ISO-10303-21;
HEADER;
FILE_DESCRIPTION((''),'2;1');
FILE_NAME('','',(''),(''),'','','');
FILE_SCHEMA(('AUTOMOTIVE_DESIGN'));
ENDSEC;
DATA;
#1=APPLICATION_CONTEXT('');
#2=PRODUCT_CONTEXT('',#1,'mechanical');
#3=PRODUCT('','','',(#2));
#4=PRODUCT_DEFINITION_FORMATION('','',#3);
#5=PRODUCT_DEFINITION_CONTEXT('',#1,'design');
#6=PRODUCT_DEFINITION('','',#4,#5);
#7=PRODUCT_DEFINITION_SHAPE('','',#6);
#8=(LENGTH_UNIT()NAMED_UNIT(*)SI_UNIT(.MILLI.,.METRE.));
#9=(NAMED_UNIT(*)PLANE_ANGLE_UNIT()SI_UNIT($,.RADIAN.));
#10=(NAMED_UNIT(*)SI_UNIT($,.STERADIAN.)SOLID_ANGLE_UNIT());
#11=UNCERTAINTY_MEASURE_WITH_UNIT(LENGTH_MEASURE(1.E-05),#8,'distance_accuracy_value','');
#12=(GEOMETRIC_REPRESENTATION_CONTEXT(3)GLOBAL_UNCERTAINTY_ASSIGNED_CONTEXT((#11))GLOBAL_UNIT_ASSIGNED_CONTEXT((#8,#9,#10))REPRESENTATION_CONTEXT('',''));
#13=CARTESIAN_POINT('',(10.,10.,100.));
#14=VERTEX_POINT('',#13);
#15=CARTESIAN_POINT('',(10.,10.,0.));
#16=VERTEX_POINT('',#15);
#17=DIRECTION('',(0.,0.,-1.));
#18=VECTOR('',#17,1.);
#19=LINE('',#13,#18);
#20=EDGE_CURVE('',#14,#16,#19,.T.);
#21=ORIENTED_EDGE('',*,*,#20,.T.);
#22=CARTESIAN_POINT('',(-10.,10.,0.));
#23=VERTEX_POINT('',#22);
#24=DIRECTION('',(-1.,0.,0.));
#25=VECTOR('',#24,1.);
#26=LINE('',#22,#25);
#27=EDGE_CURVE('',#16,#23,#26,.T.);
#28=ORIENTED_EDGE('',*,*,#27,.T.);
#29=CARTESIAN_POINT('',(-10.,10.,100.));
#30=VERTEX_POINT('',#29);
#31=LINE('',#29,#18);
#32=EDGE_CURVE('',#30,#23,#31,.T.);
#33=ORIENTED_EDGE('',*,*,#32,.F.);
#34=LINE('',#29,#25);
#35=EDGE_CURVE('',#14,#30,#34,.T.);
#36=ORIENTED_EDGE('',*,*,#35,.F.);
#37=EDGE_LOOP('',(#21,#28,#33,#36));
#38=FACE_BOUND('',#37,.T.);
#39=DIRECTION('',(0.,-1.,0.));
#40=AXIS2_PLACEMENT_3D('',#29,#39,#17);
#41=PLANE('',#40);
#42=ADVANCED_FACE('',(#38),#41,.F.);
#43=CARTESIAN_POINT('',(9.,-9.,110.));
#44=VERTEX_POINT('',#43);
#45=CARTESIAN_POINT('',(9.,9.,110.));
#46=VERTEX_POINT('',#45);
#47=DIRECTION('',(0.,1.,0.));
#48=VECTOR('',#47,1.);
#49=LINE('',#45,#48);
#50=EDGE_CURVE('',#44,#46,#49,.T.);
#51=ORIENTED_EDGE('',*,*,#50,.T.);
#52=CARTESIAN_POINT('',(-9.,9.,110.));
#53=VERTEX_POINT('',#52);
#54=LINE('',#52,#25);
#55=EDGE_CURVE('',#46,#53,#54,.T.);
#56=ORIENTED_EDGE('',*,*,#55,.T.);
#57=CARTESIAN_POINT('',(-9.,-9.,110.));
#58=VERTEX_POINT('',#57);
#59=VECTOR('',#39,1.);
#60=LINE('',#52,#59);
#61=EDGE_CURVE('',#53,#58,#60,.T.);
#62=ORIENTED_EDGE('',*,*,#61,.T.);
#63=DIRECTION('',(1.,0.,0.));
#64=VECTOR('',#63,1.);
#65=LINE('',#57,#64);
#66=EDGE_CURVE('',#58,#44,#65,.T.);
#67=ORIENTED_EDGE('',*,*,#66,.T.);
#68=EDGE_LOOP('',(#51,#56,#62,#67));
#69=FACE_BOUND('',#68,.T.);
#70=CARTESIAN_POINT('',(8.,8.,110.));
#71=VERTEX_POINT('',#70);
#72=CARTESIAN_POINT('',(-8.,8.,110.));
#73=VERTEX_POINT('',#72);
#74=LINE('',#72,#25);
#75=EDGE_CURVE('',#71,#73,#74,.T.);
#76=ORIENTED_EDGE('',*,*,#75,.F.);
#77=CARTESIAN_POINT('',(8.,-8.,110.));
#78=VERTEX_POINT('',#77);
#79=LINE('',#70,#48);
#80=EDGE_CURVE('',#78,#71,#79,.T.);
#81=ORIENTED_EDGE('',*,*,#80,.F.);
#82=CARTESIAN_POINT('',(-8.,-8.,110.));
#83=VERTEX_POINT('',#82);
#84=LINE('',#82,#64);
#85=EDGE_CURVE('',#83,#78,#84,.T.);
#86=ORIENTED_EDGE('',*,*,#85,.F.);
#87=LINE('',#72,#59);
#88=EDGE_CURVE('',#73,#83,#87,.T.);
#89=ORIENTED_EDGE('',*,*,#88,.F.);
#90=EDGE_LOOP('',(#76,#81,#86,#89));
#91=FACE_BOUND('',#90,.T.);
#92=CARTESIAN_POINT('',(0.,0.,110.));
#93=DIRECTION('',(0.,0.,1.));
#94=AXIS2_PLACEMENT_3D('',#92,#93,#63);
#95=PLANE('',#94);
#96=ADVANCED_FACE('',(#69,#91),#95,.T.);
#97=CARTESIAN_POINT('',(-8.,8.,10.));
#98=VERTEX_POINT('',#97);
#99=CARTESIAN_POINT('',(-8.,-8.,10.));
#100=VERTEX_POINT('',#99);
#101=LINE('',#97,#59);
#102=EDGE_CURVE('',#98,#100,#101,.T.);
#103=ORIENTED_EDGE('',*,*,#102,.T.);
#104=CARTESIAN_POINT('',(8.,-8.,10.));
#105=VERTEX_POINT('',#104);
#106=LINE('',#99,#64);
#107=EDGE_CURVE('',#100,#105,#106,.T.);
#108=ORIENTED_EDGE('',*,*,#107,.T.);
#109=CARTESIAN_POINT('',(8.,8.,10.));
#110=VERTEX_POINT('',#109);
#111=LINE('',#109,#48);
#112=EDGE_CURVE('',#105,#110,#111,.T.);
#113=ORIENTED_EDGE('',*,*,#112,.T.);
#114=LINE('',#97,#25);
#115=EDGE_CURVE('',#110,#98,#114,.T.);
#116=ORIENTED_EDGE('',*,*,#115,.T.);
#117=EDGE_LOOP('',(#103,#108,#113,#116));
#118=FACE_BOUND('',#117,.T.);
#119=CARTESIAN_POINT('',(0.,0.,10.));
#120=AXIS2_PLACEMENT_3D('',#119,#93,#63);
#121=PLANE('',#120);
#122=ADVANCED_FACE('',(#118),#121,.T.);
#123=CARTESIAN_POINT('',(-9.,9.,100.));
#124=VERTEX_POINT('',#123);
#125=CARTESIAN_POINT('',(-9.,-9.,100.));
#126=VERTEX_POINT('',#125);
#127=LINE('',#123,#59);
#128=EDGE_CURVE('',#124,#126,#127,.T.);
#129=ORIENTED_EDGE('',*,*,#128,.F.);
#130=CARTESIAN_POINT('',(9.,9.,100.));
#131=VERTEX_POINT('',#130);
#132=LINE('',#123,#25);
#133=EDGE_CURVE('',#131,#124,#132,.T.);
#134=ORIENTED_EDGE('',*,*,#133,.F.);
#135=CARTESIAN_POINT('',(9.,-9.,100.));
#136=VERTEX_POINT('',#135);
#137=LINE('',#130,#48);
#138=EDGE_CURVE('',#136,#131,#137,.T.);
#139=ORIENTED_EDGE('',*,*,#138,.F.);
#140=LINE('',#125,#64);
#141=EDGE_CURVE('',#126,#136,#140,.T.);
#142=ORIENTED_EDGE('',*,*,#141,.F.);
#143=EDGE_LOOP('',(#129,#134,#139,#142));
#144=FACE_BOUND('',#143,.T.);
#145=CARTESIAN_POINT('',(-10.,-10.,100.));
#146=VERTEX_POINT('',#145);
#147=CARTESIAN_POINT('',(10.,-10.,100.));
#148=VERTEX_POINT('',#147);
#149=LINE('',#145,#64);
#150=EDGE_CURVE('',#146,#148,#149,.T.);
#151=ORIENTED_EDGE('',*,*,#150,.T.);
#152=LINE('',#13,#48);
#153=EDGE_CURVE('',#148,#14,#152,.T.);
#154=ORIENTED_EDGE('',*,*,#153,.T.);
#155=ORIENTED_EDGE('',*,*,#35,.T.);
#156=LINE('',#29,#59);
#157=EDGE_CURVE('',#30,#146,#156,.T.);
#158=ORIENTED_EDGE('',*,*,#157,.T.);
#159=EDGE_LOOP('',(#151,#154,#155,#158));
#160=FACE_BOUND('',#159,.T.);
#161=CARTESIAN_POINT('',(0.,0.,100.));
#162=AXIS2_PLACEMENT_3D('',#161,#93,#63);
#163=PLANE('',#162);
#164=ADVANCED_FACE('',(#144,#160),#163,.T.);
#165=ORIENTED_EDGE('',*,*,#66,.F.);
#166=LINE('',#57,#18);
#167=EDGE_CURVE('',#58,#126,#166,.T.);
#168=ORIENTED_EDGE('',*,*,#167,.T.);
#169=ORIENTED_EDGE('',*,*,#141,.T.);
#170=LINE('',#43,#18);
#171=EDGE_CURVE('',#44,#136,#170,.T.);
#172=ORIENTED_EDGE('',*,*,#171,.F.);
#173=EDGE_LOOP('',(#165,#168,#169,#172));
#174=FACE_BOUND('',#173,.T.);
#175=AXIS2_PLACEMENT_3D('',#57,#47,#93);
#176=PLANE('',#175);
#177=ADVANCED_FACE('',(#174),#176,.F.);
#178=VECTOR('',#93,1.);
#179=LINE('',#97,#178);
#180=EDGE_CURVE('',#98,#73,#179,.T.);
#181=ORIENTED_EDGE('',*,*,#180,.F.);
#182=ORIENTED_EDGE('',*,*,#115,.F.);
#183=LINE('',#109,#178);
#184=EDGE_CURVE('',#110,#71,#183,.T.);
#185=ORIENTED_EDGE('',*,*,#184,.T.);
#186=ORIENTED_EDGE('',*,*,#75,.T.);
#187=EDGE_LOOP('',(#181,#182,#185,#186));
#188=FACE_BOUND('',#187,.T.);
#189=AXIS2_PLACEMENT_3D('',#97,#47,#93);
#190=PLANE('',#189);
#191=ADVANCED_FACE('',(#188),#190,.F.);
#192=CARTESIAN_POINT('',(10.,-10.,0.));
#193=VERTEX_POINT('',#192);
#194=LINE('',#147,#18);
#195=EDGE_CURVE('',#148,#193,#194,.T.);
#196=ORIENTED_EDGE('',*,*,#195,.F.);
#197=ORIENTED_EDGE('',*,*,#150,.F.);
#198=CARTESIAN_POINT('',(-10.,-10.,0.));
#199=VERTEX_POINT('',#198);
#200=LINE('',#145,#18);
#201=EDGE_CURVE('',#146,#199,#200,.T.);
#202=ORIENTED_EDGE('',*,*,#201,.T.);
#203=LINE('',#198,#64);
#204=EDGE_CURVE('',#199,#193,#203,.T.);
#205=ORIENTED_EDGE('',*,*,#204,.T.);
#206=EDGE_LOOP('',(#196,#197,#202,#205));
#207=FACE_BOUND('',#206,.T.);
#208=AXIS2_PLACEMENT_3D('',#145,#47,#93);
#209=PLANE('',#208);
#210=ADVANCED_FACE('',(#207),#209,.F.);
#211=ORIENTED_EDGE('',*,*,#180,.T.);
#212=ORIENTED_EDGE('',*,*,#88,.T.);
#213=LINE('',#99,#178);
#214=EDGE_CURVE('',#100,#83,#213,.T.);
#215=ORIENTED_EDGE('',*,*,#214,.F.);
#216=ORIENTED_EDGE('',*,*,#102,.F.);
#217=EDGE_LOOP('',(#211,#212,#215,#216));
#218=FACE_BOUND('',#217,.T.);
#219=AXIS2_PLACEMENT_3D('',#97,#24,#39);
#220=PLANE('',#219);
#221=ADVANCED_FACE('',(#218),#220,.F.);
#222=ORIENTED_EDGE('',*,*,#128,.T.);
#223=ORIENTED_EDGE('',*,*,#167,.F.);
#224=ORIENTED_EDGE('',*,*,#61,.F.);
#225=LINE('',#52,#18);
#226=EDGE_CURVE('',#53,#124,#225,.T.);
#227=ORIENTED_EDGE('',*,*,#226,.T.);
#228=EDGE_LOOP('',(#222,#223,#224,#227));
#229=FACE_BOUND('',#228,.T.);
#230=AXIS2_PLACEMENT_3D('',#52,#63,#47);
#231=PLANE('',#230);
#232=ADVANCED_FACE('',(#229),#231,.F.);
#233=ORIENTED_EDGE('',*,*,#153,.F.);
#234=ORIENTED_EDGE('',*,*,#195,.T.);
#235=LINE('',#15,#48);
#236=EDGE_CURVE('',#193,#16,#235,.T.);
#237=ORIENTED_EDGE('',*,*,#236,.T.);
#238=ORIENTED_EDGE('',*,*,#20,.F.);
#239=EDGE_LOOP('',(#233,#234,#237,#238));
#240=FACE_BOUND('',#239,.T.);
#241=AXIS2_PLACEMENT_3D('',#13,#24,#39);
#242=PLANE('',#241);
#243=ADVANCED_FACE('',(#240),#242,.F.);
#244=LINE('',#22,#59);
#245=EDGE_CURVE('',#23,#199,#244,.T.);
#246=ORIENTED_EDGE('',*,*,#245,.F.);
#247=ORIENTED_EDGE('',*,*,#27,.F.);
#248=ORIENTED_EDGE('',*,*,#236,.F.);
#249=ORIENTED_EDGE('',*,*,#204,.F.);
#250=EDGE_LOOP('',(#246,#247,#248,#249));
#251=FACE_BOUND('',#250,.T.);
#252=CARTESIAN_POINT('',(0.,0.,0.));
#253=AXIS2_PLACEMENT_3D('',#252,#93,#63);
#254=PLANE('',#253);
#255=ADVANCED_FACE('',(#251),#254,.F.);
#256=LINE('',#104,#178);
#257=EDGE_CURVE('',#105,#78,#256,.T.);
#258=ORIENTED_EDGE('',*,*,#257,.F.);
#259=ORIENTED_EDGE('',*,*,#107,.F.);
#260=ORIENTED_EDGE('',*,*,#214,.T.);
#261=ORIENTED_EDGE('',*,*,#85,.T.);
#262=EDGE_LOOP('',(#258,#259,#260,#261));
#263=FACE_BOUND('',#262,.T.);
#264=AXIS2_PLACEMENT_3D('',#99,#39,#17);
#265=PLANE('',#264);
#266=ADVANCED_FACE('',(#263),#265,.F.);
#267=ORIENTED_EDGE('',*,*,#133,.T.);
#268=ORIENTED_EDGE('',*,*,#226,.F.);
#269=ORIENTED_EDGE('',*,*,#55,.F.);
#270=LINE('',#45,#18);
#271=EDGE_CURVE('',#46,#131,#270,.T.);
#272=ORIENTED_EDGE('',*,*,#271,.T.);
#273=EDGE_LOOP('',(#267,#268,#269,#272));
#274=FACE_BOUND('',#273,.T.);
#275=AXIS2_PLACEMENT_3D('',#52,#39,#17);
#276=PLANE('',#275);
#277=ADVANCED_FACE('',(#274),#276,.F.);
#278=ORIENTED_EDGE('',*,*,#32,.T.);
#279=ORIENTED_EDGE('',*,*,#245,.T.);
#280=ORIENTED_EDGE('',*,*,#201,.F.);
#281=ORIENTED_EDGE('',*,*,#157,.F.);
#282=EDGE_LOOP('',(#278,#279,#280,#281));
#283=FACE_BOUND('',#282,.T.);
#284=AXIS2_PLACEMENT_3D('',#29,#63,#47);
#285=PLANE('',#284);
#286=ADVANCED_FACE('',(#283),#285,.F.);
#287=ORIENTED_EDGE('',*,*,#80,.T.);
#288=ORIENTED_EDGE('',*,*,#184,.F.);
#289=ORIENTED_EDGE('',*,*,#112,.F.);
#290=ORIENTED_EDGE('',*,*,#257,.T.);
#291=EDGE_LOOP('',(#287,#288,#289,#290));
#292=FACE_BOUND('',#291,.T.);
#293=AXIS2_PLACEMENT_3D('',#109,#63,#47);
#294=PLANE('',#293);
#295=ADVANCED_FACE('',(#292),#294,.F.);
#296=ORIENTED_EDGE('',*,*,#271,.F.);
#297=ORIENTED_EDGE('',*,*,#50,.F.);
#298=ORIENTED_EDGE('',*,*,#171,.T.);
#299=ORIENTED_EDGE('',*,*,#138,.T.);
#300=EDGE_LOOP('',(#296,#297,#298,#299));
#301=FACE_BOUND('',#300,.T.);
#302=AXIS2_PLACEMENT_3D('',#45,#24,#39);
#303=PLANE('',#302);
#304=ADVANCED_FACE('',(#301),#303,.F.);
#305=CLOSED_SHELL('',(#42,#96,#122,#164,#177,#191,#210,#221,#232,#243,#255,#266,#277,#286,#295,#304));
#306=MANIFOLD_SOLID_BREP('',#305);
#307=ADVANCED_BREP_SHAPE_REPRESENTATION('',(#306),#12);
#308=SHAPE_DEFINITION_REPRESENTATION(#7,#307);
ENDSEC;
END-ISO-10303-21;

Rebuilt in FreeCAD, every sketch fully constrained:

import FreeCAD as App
import Part
import Sketcher
from FreeCAD import Vector

doc = App.newDocument("Part")
body = doc.addObject("PartDesign::Body", "Body")

# Sketch on XY plane
sketch1 = doc.addObject("Sketcher::SketchObject", "Sketch")
body.addObject(sketch1)
sketch1.AttachmentSupport = (doc.XY_Plane, [""])
sketch1.MapMode = "FlatFace"
sketch1.addGeometry([
    Part.LineSegment(Vector(-10, 10, 0), Vector(-10, -10, 0)),
    Part.LineSegment(Vector(-10, -10, 0), Vector(10, -10, 0)),
    Part.LineSegment(Vector(10, -10, 0), Vector(10, 10, 0)),
    Part.LineSegment(Vector(10, 10, 0), Vector(-10, 10, 0)),
], False)
sketch1.addConstraint([
    Sketcher.Constraint("Coincident", 0, 2, 1, 1),
    Sketcher.Constraint("Coincident", 1, 2, 2, 1),
    Sketcher.Constraint("Coincident", 2, 2, 3, 1),
    Sketcher.Constraint("Coincident", 3, 2, 0, 1),
    Sketcher.Constraint("Vertical", 0),
    Sketcher.Constraint("Horizontal", 1),
    Sketcher.Constraint("Vertical", 2),
    Sketcher.Constraint("Horizontal", 3),
    Sketcher.Constraint("Symmetric", 0, 2, 2, 2, -1, 1),
    Sketcher.Constraint("Equal", 3, 0),
    Sketcher.Constraint("DistanceX", 1, 1, 1, 2, 20.0),
])
pad1 = doc.addObject("PartDesign::Pad", "Pad")
body.addObject(pad1)
pad1.Profile = sketch1
pad1.Length = 100

# Sketch on XY plane
sketch2 = doc.addObject("Sketcher::SketchObject", "Sketch001")
body.addObject(sketch2)
sketch2.AttachmentSupport = (doc.XY_Plane, [""])
sketch2.MapMode = "FlatFace"
sketch2.AttachmentOffset = App.Placement(Vector(0, 0, 100), App.Rotation())
sketch2.addGeometry([
    Part.LineSegment(Vector(-9, 9, 0), Vector(-9, -9, 0)),
    Part.LineSegment(Vector(-9, -9, 0), Vector(9, -9, 0)),
    Part.LineSegment(Vector(9, -9, 0), Vector(9, 9, 0)),
    Part.LineSegment(Vector(9, 9, 0), Vector(-9, 9, 0)),
], False)
sketch2.addConstraint([
    Sketcher.Constraint("Coincident", 0, 2, 1, 1),
    Sketcher.Constraint("Coincident", 1, 2, 2, 1),
    Sketcher.Constraint("Coincident", 2, 2, 3, 1),
    Sketcher.Constraint("Coincident", 3, 2, 0, 1),
    Sketcher.Constraint("Vertical", 0),
    Sketcher.Constraint("Horizontal", 1),
    Sketcher.Constraint("Vertical", 2),
    Sketcher.Constraint("Horizontal", 3),
    Sketcher.Constraint("Symmetric", 0, 2, 2, 2, -1, 1),
    Sketcher.Constraint("Equal", 3, 0),
    Sketcher.Constraint("DistanceX", 1, 1, 1, 2, 18.0),
])
pad2 = doc.addObject("PartDesign::Pad", "Pad001")
body.addObject(pad2)
pad2.Profile = sketch2
pad2.Length = 10

# Sketch on XY plane
sketch3 = doc.addObject("Sketcher::SketchObject", "Sketch002")
body.addObject(sketch3)
sketch3.AttachmentSupport = (doc.XY_Plane, [""])
sketch3.MapMode = "FlatFace"
sketch3.AttachmentOffset = App.Placement(Vector(0, 0, 110), App.Rotation())
sketch3.addGeometry([
    Part.LineSegment(Vector(-8, 8, 0), Vector(-8, -8, 0)),
    Part.LineSegment(Vector(-8, -8, 0), Vector(8, -8, 0)),
    Part.LineSegment(Vector(8, -8, 0), Vector(8, 8, 0)),
    Part.LineSegment(Vector(8, 8, 0), Vector(-8, 8, 0)),
], False)
sketch3.addConstraint([
    Sketcher.Constraint("Coincident", 0, 2, 1, 1),
    Sketcher.Constraint("Coincident", 1, 2, 2, 1),
    Sketcher.Constraint("Coincident", 2, 2, 3, 1),
    Sketcher.Constraint("Coincident", 3, 2, 0, 1),
    Sketcher.Constraint("Vertical", 0),
    Sketcher.Constraint("Horizontal", 1),
    Sketcher.Constraint("Vertical", 2),
    Sketcher.Constraint("Horizontal", 3),
    Sketcher.Constraint("Symmetric", 0, 2, 2, 2, -1, 1),
    Sketcher.Constraint("Equal", 3, 0),
    Sketcher.Constraint("DistanceX", 1, 1, 1, 2, 16.0),
])
pocket1 = doc.addObject("PartDesign::Pocket", "Pocket")
body.addObject(pocket1)
pocket1.Profile = sketch3
pocket1.Length = 100

doc.recompute()
